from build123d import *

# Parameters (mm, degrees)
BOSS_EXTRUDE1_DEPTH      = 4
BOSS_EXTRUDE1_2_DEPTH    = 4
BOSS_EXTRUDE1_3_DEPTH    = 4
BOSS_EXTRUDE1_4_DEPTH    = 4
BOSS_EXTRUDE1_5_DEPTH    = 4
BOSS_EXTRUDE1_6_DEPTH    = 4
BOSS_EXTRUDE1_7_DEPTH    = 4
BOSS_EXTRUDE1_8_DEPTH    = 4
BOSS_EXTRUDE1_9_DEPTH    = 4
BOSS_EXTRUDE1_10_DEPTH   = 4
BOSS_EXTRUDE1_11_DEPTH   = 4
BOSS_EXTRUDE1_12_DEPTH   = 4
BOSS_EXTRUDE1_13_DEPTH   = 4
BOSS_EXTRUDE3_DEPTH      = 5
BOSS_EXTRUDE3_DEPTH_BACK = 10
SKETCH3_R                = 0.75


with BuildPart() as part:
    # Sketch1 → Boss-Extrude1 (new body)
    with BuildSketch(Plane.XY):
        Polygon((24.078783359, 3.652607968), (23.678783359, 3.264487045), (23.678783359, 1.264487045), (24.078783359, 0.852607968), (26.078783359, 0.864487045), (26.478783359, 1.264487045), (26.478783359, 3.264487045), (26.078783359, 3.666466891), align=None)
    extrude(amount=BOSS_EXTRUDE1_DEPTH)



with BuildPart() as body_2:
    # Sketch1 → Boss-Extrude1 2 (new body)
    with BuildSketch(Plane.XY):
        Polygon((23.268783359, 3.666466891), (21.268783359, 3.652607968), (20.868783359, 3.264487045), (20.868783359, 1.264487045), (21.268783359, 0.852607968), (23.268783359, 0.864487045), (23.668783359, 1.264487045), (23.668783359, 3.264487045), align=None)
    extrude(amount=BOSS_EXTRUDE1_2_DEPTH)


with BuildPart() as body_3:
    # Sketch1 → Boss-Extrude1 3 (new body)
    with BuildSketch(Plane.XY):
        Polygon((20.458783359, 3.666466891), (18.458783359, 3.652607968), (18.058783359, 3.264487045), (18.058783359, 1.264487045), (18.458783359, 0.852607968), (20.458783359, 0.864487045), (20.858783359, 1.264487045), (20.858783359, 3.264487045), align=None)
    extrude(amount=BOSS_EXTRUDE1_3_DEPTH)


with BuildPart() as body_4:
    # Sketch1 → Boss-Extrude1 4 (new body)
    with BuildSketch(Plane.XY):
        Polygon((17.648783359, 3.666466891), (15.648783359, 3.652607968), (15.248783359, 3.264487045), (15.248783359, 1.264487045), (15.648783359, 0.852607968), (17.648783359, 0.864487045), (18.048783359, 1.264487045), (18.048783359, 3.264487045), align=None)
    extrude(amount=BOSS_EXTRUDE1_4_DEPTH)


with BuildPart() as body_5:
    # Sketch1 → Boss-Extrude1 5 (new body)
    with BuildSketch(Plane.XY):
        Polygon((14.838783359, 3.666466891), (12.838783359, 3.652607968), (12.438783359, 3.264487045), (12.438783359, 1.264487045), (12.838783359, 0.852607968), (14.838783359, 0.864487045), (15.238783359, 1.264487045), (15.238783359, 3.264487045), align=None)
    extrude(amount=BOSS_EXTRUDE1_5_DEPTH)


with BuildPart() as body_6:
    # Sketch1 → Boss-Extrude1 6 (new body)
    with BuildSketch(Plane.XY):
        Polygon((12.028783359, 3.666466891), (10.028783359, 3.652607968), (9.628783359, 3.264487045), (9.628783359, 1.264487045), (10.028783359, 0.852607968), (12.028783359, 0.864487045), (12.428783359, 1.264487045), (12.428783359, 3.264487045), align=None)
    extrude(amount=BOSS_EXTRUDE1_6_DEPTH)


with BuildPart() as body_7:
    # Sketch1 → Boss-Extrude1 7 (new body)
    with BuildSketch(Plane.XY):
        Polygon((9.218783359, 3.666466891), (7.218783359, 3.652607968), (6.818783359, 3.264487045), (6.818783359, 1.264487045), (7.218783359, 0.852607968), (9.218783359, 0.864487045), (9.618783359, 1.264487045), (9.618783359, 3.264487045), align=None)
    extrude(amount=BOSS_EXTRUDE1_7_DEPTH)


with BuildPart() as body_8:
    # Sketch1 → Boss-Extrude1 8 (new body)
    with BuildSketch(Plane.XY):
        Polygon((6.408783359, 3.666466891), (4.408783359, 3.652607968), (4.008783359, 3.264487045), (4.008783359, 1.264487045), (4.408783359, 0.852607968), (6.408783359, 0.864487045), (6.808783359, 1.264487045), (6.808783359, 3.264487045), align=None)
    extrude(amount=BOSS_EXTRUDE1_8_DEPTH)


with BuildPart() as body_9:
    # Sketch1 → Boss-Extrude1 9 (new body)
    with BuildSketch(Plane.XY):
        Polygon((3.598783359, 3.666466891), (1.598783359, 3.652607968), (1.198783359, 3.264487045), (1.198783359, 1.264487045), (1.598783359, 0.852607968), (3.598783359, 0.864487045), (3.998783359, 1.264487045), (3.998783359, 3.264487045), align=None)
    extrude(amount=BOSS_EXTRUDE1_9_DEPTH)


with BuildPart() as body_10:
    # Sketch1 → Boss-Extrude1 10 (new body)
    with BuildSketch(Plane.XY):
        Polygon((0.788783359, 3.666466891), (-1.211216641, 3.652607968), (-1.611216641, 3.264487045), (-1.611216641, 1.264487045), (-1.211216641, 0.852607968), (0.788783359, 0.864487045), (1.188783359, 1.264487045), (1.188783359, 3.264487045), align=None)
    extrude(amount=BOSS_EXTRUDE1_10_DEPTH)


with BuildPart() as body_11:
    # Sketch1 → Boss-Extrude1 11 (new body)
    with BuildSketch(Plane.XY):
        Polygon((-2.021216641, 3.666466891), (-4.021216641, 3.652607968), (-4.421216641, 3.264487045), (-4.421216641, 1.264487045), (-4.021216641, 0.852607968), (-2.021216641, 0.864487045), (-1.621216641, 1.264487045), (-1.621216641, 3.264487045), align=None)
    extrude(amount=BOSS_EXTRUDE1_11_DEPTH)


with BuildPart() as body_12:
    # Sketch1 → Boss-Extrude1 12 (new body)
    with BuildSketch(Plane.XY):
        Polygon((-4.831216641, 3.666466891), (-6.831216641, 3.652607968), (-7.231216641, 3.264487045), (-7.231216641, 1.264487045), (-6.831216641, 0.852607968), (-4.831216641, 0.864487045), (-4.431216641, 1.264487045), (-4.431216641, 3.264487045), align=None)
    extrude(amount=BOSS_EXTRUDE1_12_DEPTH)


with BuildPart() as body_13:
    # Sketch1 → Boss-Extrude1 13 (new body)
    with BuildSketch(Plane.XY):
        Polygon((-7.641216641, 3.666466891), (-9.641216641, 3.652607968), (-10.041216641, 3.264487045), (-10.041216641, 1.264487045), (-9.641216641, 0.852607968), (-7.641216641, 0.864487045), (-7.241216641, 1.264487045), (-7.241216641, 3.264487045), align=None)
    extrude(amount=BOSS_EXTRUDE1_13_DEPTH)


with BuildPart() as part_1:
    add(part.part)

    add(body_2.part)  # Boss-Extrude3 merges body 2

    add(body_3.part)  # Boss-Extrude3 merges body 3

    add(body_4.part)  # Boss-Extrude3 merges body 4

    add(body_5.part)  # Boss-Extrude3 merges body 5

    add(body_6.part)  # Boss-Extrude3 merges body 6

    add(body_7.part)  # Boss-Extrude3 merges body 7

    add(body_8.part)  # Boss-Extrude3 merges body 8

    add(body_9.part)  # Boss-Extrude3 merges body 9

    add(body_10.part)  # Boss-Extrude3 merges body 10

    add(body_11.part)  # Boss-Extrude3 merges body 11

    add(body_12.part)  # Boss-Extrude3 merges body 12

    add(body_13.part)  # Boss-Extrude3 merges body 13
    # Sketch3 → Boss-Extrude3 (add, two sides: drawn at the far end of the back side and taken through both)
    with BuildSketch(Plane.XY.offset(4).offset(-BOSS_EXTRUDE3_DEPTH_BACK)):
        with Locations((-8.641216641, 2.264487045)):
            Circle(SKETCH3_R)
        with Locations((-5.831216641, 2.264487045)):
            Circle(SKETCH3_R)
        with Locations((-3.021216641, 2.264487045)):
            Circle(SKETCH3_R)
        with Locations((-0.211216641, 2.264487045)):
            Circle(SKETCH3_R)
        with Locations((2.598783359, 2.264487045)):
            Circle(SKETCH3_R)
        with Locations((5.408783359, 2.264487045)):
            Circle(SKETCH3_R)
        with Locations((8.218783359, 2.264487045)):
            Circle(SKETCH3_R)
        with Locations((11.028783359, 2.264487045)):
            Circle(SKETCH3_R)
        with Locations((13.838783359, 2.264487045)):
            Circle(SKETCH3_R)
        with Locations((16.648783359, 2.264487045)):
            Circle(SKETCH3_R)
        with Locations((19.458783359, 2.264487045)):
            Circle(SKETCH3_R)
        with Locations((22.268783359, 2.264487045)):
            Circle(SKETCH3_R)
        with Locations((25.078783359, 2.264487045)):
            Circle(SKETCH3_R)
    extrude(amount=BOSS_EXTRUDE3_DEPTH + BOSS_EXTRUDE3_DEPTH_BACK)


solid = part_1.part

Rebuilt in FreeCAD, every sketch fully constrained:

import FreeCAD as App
import Part
import Sketcher
Q = App.Units.Quantity


def add_polygon(sketch, points):
    """Adds a closed chain of lines whose ends are joined by coincident constraints."""
    first, n = sketch.GeometryCount, len(points)
    for a, b in zip(points, points[1:] + points[:1]):
        sketch.addGeometry(Part.LineSegment(App.Vector(*a, 0), App.Vector(*b, 0)), False)
    for i in range(n):
        sketch.addConstraint(Sketcher.Constraint("Coincident", first + i, 2, first + (i + 1) % n, 1))

doc = App.newDocument("Part")
body = doc.addObject("PartDesign::Body", "Body")

# Sketch on XY plane
sketch1 = doc.addObject("Sketcher::SketchObject", "Sketch")
body.addObject(sketch1)
sketch1.AttachmentSupport = (doc.XY_Plane, [""])
sketch1.MapMode = "FlatFace"
add_polygon(sketch1, [(24.078783, 3.652608), (23.678783, 3.264487), (23.678783, 1.264487), (24.078783, 0.852608), (26.078783, 0.864487), (26.478783, 1.264487), (26.478783, 3.264487), (26.078783, 3.666467)])  # lines 0-7
sketch1.addConstraint([
    Sketcher.Constraint("Vertical", 1),
    Sketcher.Constraint("Vertical", 5),
    Sketcher.Constraint("Horizontal", 1, 2, 4, 2),
    Sketcher.Constraint("Horizontal", 0, 2, 5, 2),
    Sketcher.Constraint("Vertical", 3, 2, 6, 2),
    Sketcher.Constraint("Vertical", 2, 2, 7, 2),
    Sketcher.Constraint("DistanceY", 1, 2, 1, 1, 2.0),
    Sketcher.Constraint("Angle", 4, Q("45 deg")),
    Sketcher.Constraint("DistanceX", 2, 2, 3, 2, 2.0),
    Sketcher.Constraint("DistanceX", 1, 2, 2, 2, 0.4),
    Sketcher.Constraint("DistanceY", 3, 2, 1, 2, 0.4),
    Sketcher.Constraint("DistanceY", 2, 2, 7, 2, 2.8),
    Sketcher.Constraint("Distance", 0, 0.557349),
    Sketcher.Constraint("Distance", 7, 2.000048),
    Sketcher.Constraint("DistanceX", -1, 1, 0, 2, 23.678783),
    Sketcher.Constraint("DistanceY", -1, 1, 0, 2, 3.264487),
])
pad1 = doc.addObject("PartDesign::Pad", "Pad")
body.addObject(pad1)
pad1.Profile = sketch1
pad1.Length = 4
body2 = doc.addObject("PartDesign::Body", "Body001")

# Sketch on XY plane
sketch2 = doc.addObject("Sketcher::SketchObject", "Sketch001")
body2.addObject(sketch2)
sketch2.AttachmentSupport = (doc.getObject("XY_Plane001"), [""])
sketch2.MapMode = "FlatFace"
add_polygon(sketch2, [(23.268783, 3.666467), (21.268783, 3.652608), (20.868783, 3.264487), (20.868783, 1.264487), (21.268783, 0.852608), (23.268783, 0.864487), (23.668783, 1.264487), (23.668783, 3.264487)])  # lines 0-7
sketch2.addConstraint([
    Sketcher.Constraint("Vertical", 2),
    Sketcher.Constraint("Vertical", 6),
    Sketcher.Constraint("Horizontal", 2, 2, 5, 2),
    Sketcher.Constraint("Horizontal", 1, 2, 6, 2),
    Sketcher.Constraint("Vertical", 0, 2, 3, 2),
    Sketcher.Constraint("Vertical", 4, 2, 7, 2),
    Sketcher.Constraint("DistanceY", 2, 2, 2, 1, 2.0),
    Sketcher.Constraint("Angle", 5, Q("45 deg")),
    Sketcher.Constraint("DistanceX", 3, 2, 4, 2, 2.0),
    Sketcher.Constraint("DistanceX", 1, 2, 0, 2, 0.4),
    Sketcher.Constraint("DistanceY", 3, 2, 0, 2, 2.8),
    Sketcher.Constraint("DistanceY", 4, 2, 2, 2, 0.4),
    Sketcher.Constraint("Distance", 0, 2.000048),
    Sketcher.Constraint("Distance", 1, 0.557349),
    Sketcher.Constraint("DistanceX", -1, 1, 0, 2, 21.268783),
    Sketcher.Constraint("DistanceY", -1, 1, 0, 2, 3.652608),
])
pad2 = doc.addObject("PartDesign::Pad", "Pad001")
body2.addObject(pad2)
pad2.Profile = sketch2
pad2.Length = 4
body3 = doc.addObject("PartDesign::Body", "Body002")

# Sketch on XY plane
sketch3 = doc.addObject("Sketcher::SketchObject", "Sketch002")
body3.addObject(sketch3)
sketch3.AttachmentSupport = (doc.getObject("XY_Plane002"), [""])
sketch3.MapMode = "FlatFace"
add_polygon(sketch3, [(20.458783, 3.666467), (18.458783, 3.652608), (18.058783, 3.264487), (18.058783, 1.264487), (18.458783, 0.852608), (20.458783, 0.864487), (20.858783, 1.264487), (20.858783, 3.264487)])  # lines 0-7
sketch3.addConstraint([
    Sketcher.Constraint("Vertical", 2),
    Sketcher.Constraint("Vertical", 6),
    Sketcher.Constraint("Horizontal", 2, 2, 5, 2),
    Sketcher.Constraint("Horizontal", 1, 2, 6, 2),
    Sketcher.Constraint("Vertical", 0, 2, 3, 2),
    Sketcher.Constraint("Vertical", 4, 2, 7, 2),
    Sketcher.Constraint("DistanceY", 2, 2, 2, 1, 2.0),
    Sketcher.Constraint("Angle", 5, Q("45 deg")),
    Sketcher.Constraint("DistanceX", 3, 2, 4, 2, 2.0),
    Sketcher.Constraint("DistanceX", 1, 2, 0, 2, 0.4),
    Sketcher.Constraint("DistanceY", 3, 2, 0, 2, 2.8),
    Sketcher.Constraint("DistanceY", 4, 2, 2, 2, 0.4),
    Sketcher.Constraint("Distance", 0, 2.000048),
    Sketcher.Constraint("Distance", 1, 0.557349),
    Sketcher.Constraint("DistanceX", -1, 1, 0, 2, 18.458783),
    Sketcher.Constraint("DistanceY", -1, 1, 0, 2, 3.652608),
])
pad3 = doc.addObject("PartDesign::Pad", "Pad002")
body3.addObject(pad3)
pad3.Profile = sketch3
pad3.Length = 4
body4 = doc.addObject("PartDesign::Body", "Body003")

# Sketch on XY plane
sketch4 = doc.addObject("Sketcher::SketchObject", "Sketch003")
body4.addObject(sketch4)
sketch4.AttachmentSupport = (doc.getObject("XY_Plane003"), [""])
sketch4.MapMode = "FlatFace"
add_polygon(sketch4, [(17.648783, 3.666467), (15.648783, 3.652608), (15.248783, 3.264487), (15.248783, 1.264487), (15.648783, 0.852608), (17.648783, 0.864487), (18.048783, 1.264487), (18.048783, 3.264487)])  # lines 0-7
sketch4.addConstraint([
    Sketcher.Constraint("Vertical", 2),
    Sketcher.Constraint("Vertical", 6),
    Sketcher.Constraint("Horizontal", 2, 2, 5, 2),
    Sketcher.Constraint("Horizontal", 1, 2, 6, 2),
    Sketcher.Constraint("Vertical", 0, 2, 3, 2),
    Sketcher.Constraint("Vertical", 4, 2, 7, 2),
    Sketcher.Constraint("DistanceY", 2, 2, 2, 1, 2.0),
    Sketcher.Constraint("Angle", 5, Q("45 deg")),
    Sketcher.Constraint("DistanceX", 3, 2, 4, 2, 2.0),
    Sketcher.Constraint("DistanceX", 1, 2, 0, 2, 0.4),
    Sketcher.Constraint("DistanceY", 3, 2, 0, 2, 2.8),
    Sketcher.Constraint("DistanceY", 4, 2, 2, 2, 0.4),
    Sketcher.Constraint("Distance", 0, 2.000048),
    Sketcher.Constraint("Distance", 1, 0.557349),
    Sketcher.Constraint("DistanceX", -1, 1, 0, 2, 15.648783),
    Sketcher.Constraint("DistanceY", -1, 1, 0, 2, 3.652608),
])
pad4 = doc.addObject("PartDesign::Pad", "Pad003")
body4.addObject(pad4)
pad4.Profile = sketch4
pad4.Length = 4
body5 = doc.addObject("PartDesign::Body", "Body004")

# Sketch on XY plane
sketch5 = doc.addObject("Sketcher::SketchObject", "Sketch004")
body5.addObject(sketch5)
sketch5.AttachmentSupport = (doc.getObject("XY_Plane004"), [""])
sketch5.MapMode = "FlatFace"
add_polygon(sketch5, [(14.838783, 3.666467), (12.838783, 3.652608), (12.438783, 3.264487), (12.438783, 1.264487), (12.838783, 0.852608), (14.838783, 0.864487), (15.238783, 1.264487), (15.238783, 3.264487)])  # lines 0-7
sketch5.addConstraint([
    Sketcher.Constraint("Vertical", 2),
    Sketcher.Constraint("Vertical", 6),
    Sketcher.Constraint("Horizontal", 2, 2, 5, 2),
    Sketcher.Constraint("Horizontal", 1, 2, 6, 2),
    Sketcher.Constraint("Vertical", 0, 2, 3, 2),
    Sketcher.Constraint("Vertical", 4, 2, 7, 2),
    Sketcher.Constraint("DistanceY", 2, 2, 2, 1, 2.0),
    Sketcher.Constraint("Angle", 5, Q("45 deg")),
    Sketcher.Constraint("DistanceX", 3, 2, 4, 2, 2.0),
    Sketcher.Constraint("DistanceX", 1, 2, 0, 2, 0.4),
    Sketcher.Constraint("DistanceY", 3, 2, 0, 2, 2.8),
    Sketcher.Constraint("DistanceY", 4, 2, 2, 2, 0.4),
    Sketcher.Constraint("Distance", 0, 2.000048),
    Sketcher.Constraint("Distance", 1, 0.557349),
    Sketcher.Constraint("DistanceX", -1, 1, 0, 2, 12.838783),
    Sketcher.Constraint("DistanceY", -1, 1, 0, 2, 3.652608),
])
pad5 = doc.addObject("PartDesign::Pad", "Pad004")
body5.addObject(pad5)
pad5.Profile = sketch5
pad5.Length = 4
body6 = doc.addObject("PartDesign::Body", "Body005")

# Sketch on XY plane
sketch6 = doc.addObject("Sketcher::SketchObject", "Sketch005")
body6.addObject(sketch6)
sketch6.AttachmentSupport = (doc.getObject("XY_Plane005"), [""])
sketch6.MapMode = "FlatFace"
add_polygon(sketch6, [(12.028783, 3.666467), (10.028783, 3.652608), (9.628783, 3.264487), (9.628783, 1.264487), (10.028783, 0.852608), (12.028783, 0.864487), (12.428783, 1.264487), (12.428783, 3.264487)])  # lines 0-7
sketch6.addConstraint([
    Sketcher.Constraint("Vertical", 2),
    Sketcher.Constraint("Vertical", 6),
    Sketcher.Constraint("Horizontal", 2, 2, 5, 2),
    Sketcher.Constraint("Horizontal", 1, 2, 6, 2),
    Sketcher.Constraint("Vertical", 0, 2, 3, 2),
    Sketcher.Constraint("Vertical", 4, 2, 7, 2),
    Sketcher.Constraint("DistanceY", 2, 2, 2, 1, 2.0),
    Sketcher.Constraint("Angle", 5, Q("45 deg")),
    Sketcher.Constraint("DistanceX", 3, 2, 4, 2, 2.0),
    Sketcher.Constraint("DistanceX", 1, 2, 0, 2, 0.4),
    Sketcher.Constraint("DistanceY", 3, 2, 0, 2, 2.8),
    Sketcher.Constraint("DistanceY", 4, 2, 2, 2, 0.4),
    Sketcher.Constraint("Distance", 0, 2.000048),
    Sketcher.Constraint("Distance", 1, 0.557349),
    Sketcher.Constraint("DistanceX", -1, 1, 0, 2, 10.028783),
    Sketcher.Constraint("DistanceY", -1, 1, 0, 2, 3.652608),
])
pad6 = doc.addObject("PartDesign::Pad", "Pad005")
body6.addObject(pad6)
pad6.Profile = sketch6
pad6.Length = 4
body7 = doc.addObject("PartDesign::Body", "Body006")

# Sketch on XY plane
sketch7 = doc.addObject("Sketcher::SketchObject", "Sketch006")
body7.addObject(sketch7)
sketch7.AttachmentSupport = (doc.getObject("XY_Plane006"), [""])
sketch7.MapMode = "FlatFace"
add_polygon(sketch7, [(9.218783, 3.666467), (7.218783, 3.652608), (6.818783, 3.264487), (6.818783, 1.264487), (7.218783, 0.852608), (9.218783, 0.864487), (9.618783, 1.264487), (9.618783, 3.264487)])  # lines 0-7
sketch7.addConstraint([
    Sketcher.Constraint("Vertical", 2),
    Sketcher.Constraint("Vertical", 6),
    Sketcher.Constraint("Horizontal", 2, 2, 5, 2),
    Sketcher.Constraint("Horizontal", 1, 2, 6, 2),
    Sketcher.Constraint("Vertical", 0, 2, 3, 2),
    Sketcher.Constraint("Vertical", 4, 2, 7, 2),
    Sketcher.Constraint("DistanceY", 2, 2, 2, 1, 2.0),
    Sketcher.Constraint("Angle", 5, Q("45 deg")),
    Sketcher.Constraint("DistanceX", 3, 2, 4, 2, 2.0),
    Sketcher.Constraint("DistanceX", 1, 2, 0, 2, 0.4),
    Sketcher.Constraint("DistanceY", 3, 2, 0, 2, 2.8),
    Sketcher.Constraint("DistanceY", 4, 2, 2, 2, 0.4),
    Sketcher.Constraint("Distance", 0, 2.000048),
    Sketcher.Constraint("Distance", 1, 0.557349),
    Sketcher.Constraint("DistanceX", -1, 1, 0, 2, 7.218783),
    Sketcher.Constraint("DistanceY", -1, 1, 0, 2, 3.652608),
])
pad7 = doc.addObject("PartDesign::Pad", "Pad006")
body7.addObject(pad7)
pad7.Profile = sketch7
pad7.Length = 4
body8 = doc.addObject("PartDesign::Body", "Body007")

# Sketch on XY plane
sketch8 = doc.addObject("Sketcher::SketchObject", "Sketch007")
body8.addObject(sketch8)
sketch8.AttachmentSupport = (doc.getObject("XY_Plane007"), [""])
sketch8.MapMode = "FlatFace"
add_polygon(sketch8, [(6.408783, 3.666467), (4.408783, 3.652608), (4.008783, 3.264487), (4.008783, 1.264487), (4.408783, 0.852608), (6.408783, 0.864487), (6.808783, 1.264487), (6.808783, 3.264487)])  # lines 0-7
sketch8.addConstraint([
    Sketcher.Constraint("Vertical", 2),
    Sketcher.Constraint("Vertical", 6),
    Sketcher.Constraint("Horizontal", 2, 2, 5, 2),
    Sketcher.Constraint("Horizontal", 1, 2, 6, 2),
    Sketcher.Constraint("Vertical", 0, 2, 3, 2),
    Sketcher.Constraint("Vertical", 4, 2, 7, 2),
    Sketcher.Constraint("DistanceY", 2, 2, 2, 1, 2.0),
    Sketcher.Constraint("Angle", 5, Q("45 deg")),
    Sketcher.Constraint("DistanceX", 3, 2, 4, 2, 2.0),
    Sketcher.Constraint("DistanceX", 1, 2, 0, 2, 0.4),
    Sketcher.Constraint("DistanceY", 3, 2, 0, 2, 2.8),
    Sketcher.Constraint("DistanceY", 4, 2, 2, 2, 0.4),
    Sketcher.Constraint("Distance", 0, 2.000048),
    Sketcher.Constraint("Distance", 1, 0.557349),
    Sketcher.Constraint("DistanceX", -1, 1, 0, 2, 4.408783),
    Sketcher.Constraint("DistanceY", -1, 1, 0, 2, 3.652608),
])
pad8 = doc.addObject("PartDesign::Pad", "Pad007")
body8.addObject(pad8)
pad8.Profile = sketch8
pad8.Length = 4
body9 = doc.addObject("PartDesign::Body", "Body008")

# Sketch on XY plane
sketch9 = doc.addObject("Sketcher::SketchObject", "Sketch008")
body9.addObject(sketch9)
sketch9.AttachmentSupport = (doc.getObject("XY_Plane008"), [""])
sketch9.MapMode = "FlatFace"
add_polygon(sketch9, [(3.598783, 3.666467), (1.598783, 3.652608), (1.198783, 3.264487), (1.198783, 1.264487), (1.598783, 0.852608), (3.598783, 0.864487), (3.998783, 1.264487), (3.998783, 3.264487)])  # lines 0-7
sketch9.addConstraint([
    Sketcher.Constraint("Vertical", 2),
    Sketcher.Constraint("Vertical", 6),
    Sketcher.Constraint("Horizontal", 2, 2, 5, 2),
    Sketcher.Constraint("Horizontal", 1, 2, 6, 2),
    Sketcher.Constraint("Vertical", 0, 2, 3, 2),
    Sketcher.Constraint("Vertical", 4, 2, 7, 2),
    Sketcher.Constraint("DistanceY", 2, 2, 2, 1, 2.0),
    Sketcher.Constraint("Angle", 5, Q("45 deg")),
    Sketcher.Constraint("DistanceX", 3, 2, 4, 2, 2.0),
    Sketcher.Constraint("DistanceX", 1, 2, 0, 2, 0.4),
    Sketcher.Constraint("DistanceY", 3, 2, 0, 2, 2.8),
    Sketcher.Constraint("DistanceY", 4, 2, 2, 2, 0.4),
    Sketcher.Constraint("Distance", 0, 2.000048),
    Sketcher.Constraint("Distance", 1, 0.557349),
    Sketcher.Constraint("DistanceX", -1, 1, 0, 2, 1.598783),
    Sketcher.Constraint("DistanceY", -1, 1, 0, 2, 3.652608),
])
pad9 = doc.addObject("PartDesign::Pad", "Pad008")
body9.addObject(pad9)
pad9.Profile = sketch9
pad9.Length = 4
body10 = doc.addObject("PartDesign::Body", "Body009")

# Sketch on XY plane
sketch10 = doc.addObject("Sketcher::SketchObject", "Sketch009")
body10.addObject(sketch10)
sketch10.AttachmentSupport = (doc.getObject("XY_Plane009"), [""])
sketch10.MapMode = "FlatFace"
add_polygon(sketch10, [(0.788783, 3.666467), (-1.211217, 3.652608), (-1.611217, 3.264487), (-1.611217, 1.264487), (-1.211217, 0.852608), (0.788783, 0.864487), (1.188783, 1.264487), (1.188783, 3.264487)])  # lines 0-7
sketch10.addConstraint([
    Sketcher.Constraint("Vertical", 2),
    Sketcher.Constraint("Vertical", 6),
    Sketcher.Constraint("Horizontal", 2, 2, 5, 2),
    Sketcher.Constraint("Horizontal", 1, 2, 6, 2),
    Sketcher.Constraint("Vertical", 0, 2, 3, 2),
    Sketcher.Constraint("Vertical", 4, 2, 7, 2),
    Sketcher.Constraint("DistanceY", 2, 2, 2, 1, 2.0),
    Sketcher.Constraint("Angle", 5, Q("45 deg")),
    Sketcher.Constraint("DistanceX", 3, 2, 4, 2, 2.0),
    Sketcher.Constraint("DistanceX", 1, 2, 0, 2, 0.4),
    Sketcher.Constraint("DistanceY", 3, 2, 0, 2, 2.8),
    Sketcher.Constraint("DistanceY", 4, 2, 2, 2, 0.4),
    Sketcher.Constraint("Distance", 0, 2.000048),
    Sketcher.Constraint("Distance", 1, 0.557349),
    Sketcher.Constraint("DistanceX", 0, 2, -1, 1, 1.211217),
    Sketcher.Constraint("DistanceY", -1, 1, 0, 2, 3.652608),
])
pad10 = doc.addObject("PartDesign::Pad", "Pad009")
body10.addObject(pad10)
pad10.Profile = sketch10
pad10.Length = 4
body11 = doc.addObject("PartDesign::Body", "Body010")

# Sketch on XY plane
sketch11 = doc.addObject("Sketcher::SketchObject", "Sketch010")
body11.addObject(sketch11)
sketch11.AttachmentSupport = (doc.getObject("XY_Plane010"), [""])
sketch11.MapMode = "FlatFace"
add_polygon(sketch11, [(-2.021217, 3.666467), (-4.021217, 3.652608), (-4.421217, 3.264487), (-4.421217, 1.264487), (-4.021217, 0.852608), (-2.021217, 0.864487), (-1.621217, 1.264487), (-1.621217, 3.264487)])  # lines 0-7
sketch11.addConstraint([
    Sketcher.Constraint("Vertical", 2),
    Sketcher.Constraint("Vertical", 6),
    Sketcher.Constraint("Horizontal", 2, 2, 5, 2),
    Sketcher.Constraint("Horizontal", 1, 2, 6, 2),
    Sketcher.Constraint("Vertical", 0, 2, 3, 2),
    Sketcher.Constraint("Vertical", 4, 2, 7, 2),
    Sketcher.Constraint("DistanceY", 2, 2, 2, 1, 2.0),
    Sketcher.Constraint("Angle", 5, Q("45 deg")),
    Sketcher.Constraint("DistanceX", 3, 2, 4, 2, 2.0),
    Sketcher.Constraint("DistanceX", 1, 2, 0, 2, 0.4),
    Sketcher.Constraint("DistanceY", 3, 2, 0, 2, 2.8),
    Sketcher.Constraint("DistanceY", 4, 2, 2, 2, 0.4),
    Sketcher.Constraint("Distance", 0, 2.000048),
    Sketcher.Constraint("Distance", 1, 0.557349),
    Sketcher.Constraint("DistanceX", 0, 2, -1, 1, 4.021217),
    Sketcher.Constraint("DistanceY", -1, 1, 0, 2, 3.652608),
])
pad11 = doc.addObject("PartDesign::Pad", "Pad010")
body11.addObject(pad11)
pad11.Profile = sketch11
pad11.Length = 4
body12 = doc.addObject("PartDesign::Body", "Body011")

# Sketch on XY plane
sketch12 = doc.addObject("Sketcher::SketchObject", "Sketch011")
body12.addObject(sketch12)
sketch12.AttachmentSupport = (doc.getObject("XY_Plane011"), [""])
sketch12.MapMode = "FlatFace"
add_polygon(sketch12, [(-4.831217, 3.666467), (-6.831217, 3.652608), (-7.231217, 3.264487), (-7.231217, 1.264487), (-6.831217, 0.852608), (-4.831217, 0.864487), (-4.431217, 1.264487), (-4.431217, 3.264487)])  # lines 0-7
sketch12.addConstraint([
    Sketcher.Constraint("Vertical", 2),
    Sketcher.Constraint("Vertical", 6),
    Sketcher.Constraint("Horizontal", 2, 2, 5, 2),
    Sketcher.Constraint("Horizontal", 1, 2, 6, 2),
    Sketcher.Constraint("Vertical", 0, 2, 3, 2),
    Sketcher.Constraint("Vertical", 4, 2, 7, 2),
    Sketcher.Constraint("DistanceY", 2, 2, 2, 1, 2.0),
    Sketcher.Constraint("Angle", 5, Q("45 deg")),
    Sketcher.Constraint("DistanceX", 3, 2, 4, 2, 2.0),
    Sketcher.Constraint("DistanceX", 1, 2, 0, 2, 0.4),
    Sketcher.Constraint("DistanceY", 3, 2, 0, 2, 2.8),
    Sketcher.Constraint("DistanceY", 4, 2, 2, 2, 0.4),
    Sketcher.Constraint("Distance", 0, 2.000048),
    Sketcher.Constraint("Distance", 1, 0.557349),
    Sketcher.Constraint("DistanceX", 0, 2, -1, 1, 6.831217),
    Sketcher.Constraint("DistanceY", -1, 1, 0, 2, 3.652608),
])
pad12 = doc.addObject("PartDesign::Pad", "Pad011")
body12.addObject(pad12)
pad12.Profile = sketch12
pad12.Length = 4
body13 = doc.addObject("PartDesign::Body", "Body012")

# Sketch on XY plane
sketch13 = doc.addObject("Sketcher::SketchObject", "Sketch012")
body13.addObject(sketch13)
sketch13.AttachmentSupport = (doc.getObject("XY_Plane012"), [""])
sketch13.MapMode = "FlatFace"
add_polygon(sketch13, [(-7.641217, 3.666467), (-9.641217, 3.652608), (-10.041217, 3.264487), (-10.041217, 1.264487), (-9.641217, 0.852608), (-7.641217, 0.864487), (-7.241217, 1.264487), (-7.241217, 3.264487)])  # lines 0-7
sketch13.addConstraint([
    Sketcher.Constraint("Vertical", 2),
    Sketcher.Constraint("Vertical", 6),
    Sketcher.Constraint("Horizontal", 2, 2, 5, 2),
    Sketcher.Constraint("Horizontal", 1, 2, 6, 2),
    Sketcher.Constraint("Vertical", 0, 2, 3, 2),
    Sketcher.Constraint("Vertical", 4, 2, 7, 2),
    Sketcher.Constraint("DistanceY", 2, 2, 2, 1, 2.0),
    Sketcher.Constraint("Angle", 5, Q("45 deg")),
    Sketcher.Constraint("DistanceX", 3, 2, 4, 2, 2.0),
    Sketcher.Constraint("DistanceX", 1, 2, 0, 2, 0.4),
    Sketcher.Constraint("DistanceY", 3, 2, 0, 2, 2.8),
    Sketcher.Constraint("DistanceY", 4, 2, 2, 2, 0.4),
    Sketcher.Constraint("Distance", 0, 2.000048),
    Sketcher.Constraint("Distance", 1, 0.557349),
    Sketcher.Constraint("DistanceX", 0, 2, -1, 1, 9.641217),
    Sketcher.Constraint("DistanceY", -1, 1, 0, 2, 3.652608),
])
pad13 = doc.addObject("PartDesign::Pad", "Pad012")
body13.addObject(pad13)
pad13.Profile = sketch13
pad13.Length = 4
body.AllowCompound = True
doc.recompute()

boolean = doc.addObject("PartDesign::Boolean", "Boolean")
body.addObject(boolean)
boolean.Type = "Fuse"
boolean.addObjects([body2])
doc.recompute()

boolean2 = doc.addObject("PartDesign::Boolean", "Boolean001")
body.addObject(boolean2)
boolean2.Type = "Fuse"
boolean2.addObjects([body3])
doc.recompute()

boolean3 = doc.addObject("PartDesign::Boolean", "Boolean002")
body.addObject(boolean3)
boolean3.Type = "Fuse"
boolean3.addObjects([body4])
doc.recompute()

boolean4 = doc.addObject("PartDesign::Boolean", "Boolean003")
body.addObject(boolean4)
boolean4.Type = "Fuse"
boolean4.addObjects([body5])
doc.recompute()

boolean5 = doc.addObject("PartDesign::Boolean", "Boolean004")
body.addObject(boolean5)
boolean5.Type = "Fuse"
boolean5.addObjects([body6])
doc.recompute()

boolean6 = doc.addObject("PartDesign::Boolean", "Boolean005")
body.addObject(boolean6)
boolean6.Type = "Fuse"
boolean6.addObjects([body7])
doc.recompute()

boolean7 = doc.addObject("PartDesign::Boolean", "Boolean006")
body.addObject(boolean7)
boolean7.Type = "Fuse"
boolean7.addObjects([body8])
doc.recompute()

boolean8 = doc.addObject("PartDesign::Boolean", "Boolean007")
body.addObject(boolean8)
boolean8.Type = "Fuse"
boolean8.addObjects([body9])
doc.recompute()

boolean9 = doc.addObject("PartDesign::Boolean", "Boolean008")
body.addObject(boolean9)
boolean9.Type = "Fuse"
boolean9.addObjects([body10])
doc.recompute()

boolean10 = doc.addObject("PartDesign::Boolean", "Boolean009")
body.addObject(boolean10)
boolean10.Type = "Fuse"
boolean10.addObjects([body11])
doc.recompute()

boolean11 = doc.addObject("PartDesign::Boolean", "Boolean010")
body.addObject(boolean11)
boolean11.Type = "Fuse"
boolean11.addObjects([body12])
doc.recompute()

boolean12 = doc.addObject("PartDesign::Boolean", "Boolean011")
body.addObject(boolean12)
boolean12.Type = "Fuse"
boolean12.addObjects([body13])

# Sketch on XY plane
sketch14 = doc.addObject("Sketcher::SketchObject", "Sketch013")
body.addObject(sketch14)
sketch14.AttachmentSupport = (doc.XY_Plane, [""])
sketch14.MapMode = "FlatFace"
sketch14.AttachmentOffset = App.Placement(App.Vector(0, 0, 4), App.Rotation())
sketch14.addGeometry([
    Part.Circle(App.Vector(-8.6, 2.3, 0), App.Vector(0, 0, 1), 0.8),  # 0
    Part.Circle(App.Vector(-5.8, 2.3, 0), App.Vector(0, 0, 1), 0.8),  # 1
    Part.Circle(App.Vector(-3, 2.3, 0), App.Vector(0, 0, 1), 0.8),  # 2
    Part.Circle(App.Vector(-0.2, 2.3, 0), App.Vector(0, 0, 1), 0.8),  # 3
    Part.Circle(App.Vector(2.6, 2.3, 0), App.Vector(0, 0, 1), 0.8),  # 4
    Part.Circle(App.Vector(5.4, 2.3, 0), App.Vector(0, 0, 1), 0.8),  # 5
    Part.Circle(App.Vector(8.2, 2.3, 0), App.Vector(0, 0, 1), 0.8),  # 6
    Part.Circle(App.Vector(11, 2.3, 0), App.Vector(0, 0, 1), 0.8),  # 7
    Part.Circle(App.Vector(13.8, 2.3, 0), App.Vector(0, 0, 1), 0.8),  # 8
    Part.Circle(App.Vector(16.6, 2.3, 0), App.Vector(0, 0, 1), 0.8),  # 9
    Part.Circle(App.Vector(19.5, 2.3, 0), App.Vector(0, 0, 1), 0.8),  # 10
    Part.Circle(App.Vector(22.3, 2.3, 0), App.Vector(0, 0, 1), 0.8),  # 11
    Part.Circle(App.Vector(25.1, 2.3, 0), App.Vector(0, 0, 1), 0.8),  # 12
], False)
sketch14.addConstraint([
    Sketcher.Constraint("Equal", 0, 1),
    Sketcher.Constraint("Equal", 1, 2),
    Sketcher.Constraint("Equal", 2, 3),
    Sketcher.Constraint("Equal", 3, 4),
    Sketcher.Constraint("Equal", 4, 5),
    Sketcher.Constraint("Equal", 5, 6),
    Sketcher.Constraint("Equal", 6, 7),
    Sketcher.Constraint("Equal", 7, 8),
    Sketcher.Constraint("Equal", 8, 9),
    Sketcher.Constraint("Equal", 9, 10),
    Sketcher.Constraint("Equal", 10, 11),
    Sketcher.Constraint("Equal", 11, 12),
    Sketcher.Constraint("Horizontal", 0, 3, 1, 3),
    Sketcher.Constraint("Horizontal", 1, 3, 2, 3),
    Sketcher.Constraint("Horizontal", 2, 3, 3, 3),
    Sketcher.Constraint("Horizontal", 3, 3, 4, 3),
    Sketcher.Constraint("Horizontal", 4, 3, 5, 3),
    Sketcher.Constraint("Horizontal", 5, 3, 6, 3),
    Sketcher.Constraint("Horizontal", 6, 3, 7, 3),
    Sketcher.Constraint("Horizontal", 7, 3, 8, 3),
    Sketcher.Constraint("Horizontal", 8, 3, 9, 3),
    Sketcher.Constraint("Horizontal", 9, 3, 10, 3),
    Sketcher.Constraint("Horizontal", 10, 3, 11, 3),
    Sketcher.Constraint("Horizontal", 11, 3, 12, 3),
    Sketcher.Constraint("Diameter", 0, 1.5),
    Sketcher.Constraint("DistanceX", 0, 3, 1, 3, 2.81),
    Sketcher.Constraint("DistanceX", 1, 3, 2, 3, 2.81),
    Sketcher.Constraint("DistanceX", 2, 3, 3, 3, 2.81),
    Sketcher.Constraint("DistanceX", 3, 3, 4, 3, 2.81),
    Sketcher.Constraint("DistanceX", 4, 3, 5, 3, 2.81),
    Sketcher.Constraint("DistanceX", 5, 3, 6, 3, 2.81),
    Sketcher.Constraint("DistanceX", 6, 3, 7, 3, 2.81),
    Sketcher.Constraint("DistanceX", 7, 3, 8, 3, 2.81),
    Sketcher.Constraint("DistanceX", 8, 3, 9, 3, 2.81),
    Sketcher.Constraint("DistanceX", 9, 3, 10, 3, 2.81),
    Sketcher.Constraint("DistanceX", 10, 3, 11, 3, 2.81),
    Sketcher.Constraint("DistanceX", 11, 3, 12, 3, 2.81),
    Sketcher.Constraint("DistanceX", 0, 3, -1, 1, 8.641217),
    Sketcher.Constraint("DistanceY", -1, 1, 0, 3, 2.264487),
])
pad14 = doc.addObject("PartDesign::Pad", "Pad013")
body.addObject(pad14)
pad14.Profile = sketch14
pad14.Type = "TwoLengths"
pad14.Length = 5
pad14.Length2 = 10

doc.recompute()
